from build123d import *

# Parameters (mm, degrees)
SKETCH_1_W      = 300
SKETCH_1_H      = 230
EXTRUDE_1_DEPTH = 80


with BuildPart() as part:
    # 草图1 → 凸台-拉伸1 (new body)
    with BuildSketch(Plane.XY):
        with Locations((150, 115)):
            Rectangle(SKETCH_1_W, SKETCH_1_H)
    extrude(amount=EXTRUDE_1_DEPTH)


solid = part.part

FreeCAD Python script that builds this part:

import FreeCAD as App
import Part
import Sketcher
from FreeCAD import Vector
Q = App.Units.Quantity

doc = App.newDocument("Part")
body = doc.addObject("PartDesign::Body", "Body")

sketch1 = body.newObject("Sketcher::SketchObject", "Sketch")
sketch1.AttachmentSupport = (doc.getObject("XY_Plane"), [""])
sketch1.MapMode = "FlatFace"
sketch1.addGeometry(Part.LineSegment(Vector(0, 230, 0), Vector(0, 0, 0)), False)
sketch1.addGeometry(Part.LineSegment(Vector(0, 0, 0), Vector(300, 0, 0)), False)
sketch1.addGeometry(Part.LineSegment(Vector(300, 0, 0), Vector(300, 230, 0)), False)
sketch1.addGeometry(Part.LineSegment(Vector(300, 230, 0), Vector(0, 230, 0)), False)
sketch1.addConstraint(Sketcher.Constraint("Coincident", 0, 2, 1, 1))
sketch1.addConstraint(Sketcher.Constraint("Coincident", 1, 2, 2, 1))
sketch1.addConstraint(Sketcher.Constraint("Coincident", 2, 2, 3, 1))
sketch1.addConstraint(Sketcher.Constraint("Coincident", 3, 2, 0, 1))
sketch1.addConstraint(Sketcher.Constraint("Vertical", 0))
sketch1.addConstraint(Sketcher.Constraint("Horizontal", 1))
sketch1.addConstraint(Sketcher.Constraint("Vertical", 2))
sketch1.addConstraint(Sketcher.Constraint("Horizontal", 3))
sketch1.addConstraint(Sketcher.Constraint("Coincident", 0, 2, -1, 1))
sketch1.addConstraint(Sketcher.Constraint("DistanceX", 1, 1, 1, 2, Q("300 mm")))
sketch1.addConstraint(Sketcher.Constraint("DistanceY", 0, 2, 0, 1, Q("230 mm")))
pad1 = body.newObject("PartDesign::Pad", "Pad")
pad1.Profile = sketch1
pad1.Length = 80

doc.recompute()
